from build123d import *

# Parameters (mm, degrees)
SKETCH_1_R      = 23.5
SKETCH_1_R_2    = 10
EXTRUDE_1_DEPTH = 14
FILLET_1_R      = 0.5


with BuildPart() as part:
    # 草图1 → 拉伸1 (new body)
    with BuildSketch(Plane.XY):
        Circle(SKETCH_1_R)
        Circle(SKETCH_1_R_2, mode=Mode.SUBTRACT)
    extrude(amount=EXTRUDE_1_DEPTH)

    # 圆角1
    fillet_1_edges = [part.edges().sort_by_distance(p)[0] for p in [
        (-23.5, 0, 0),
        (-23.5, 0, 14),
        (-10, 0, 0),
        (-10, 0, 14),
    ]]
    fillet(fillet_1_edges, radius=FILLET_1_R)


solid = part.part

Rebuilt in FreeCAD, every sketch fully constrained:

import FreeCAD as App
import Part
import Sketcher

V = App.Vector


def edges_at(feature, points):
    """Names of the edges that pass closest to the given points."""
    edges = feature.Shape.Edges
    near = lambda p: min(range(len(edges)), key=lambda i: edges[i].distToShape(Part.Vertex(*p))[0])
    return sorted({f"Edge{near(p) + 1}" for p in points})

doc = App.newDocument("Part")
params = doc.addObject("Spreadsheet::Sheet", "Params")
for row, (alias, value) in enumerate([
    ("sketch1_diameter", "47 mm"),
    ("sketch1_diameter2", "20 mm"),
    ("pad1_length", "14 mm"),
    ("fillet_radius", "0.5 mm"),
], start=1):
    params.set(f"A{row}", alias)
    params.set(f"B{row}", "=" + value)
    params.setAlias(f"B{row}", alias)

body = doc.addObject("PartDesign::Body", "Body")

# Sketch on XY plane
sketch1 = body.newObject("Sketcher::SketchObject", "Sketch")
sketch1.AttachmentSupport = (doc.getObject("XY_Plane"), [""])
sketch1.MapMode = "FlatFace"
sketch1.addGeometry([
    Part.Circle(V(0, 0, 0), V(0, 0, 1), 24),
    Part.Circle(V(0, 0, 0), V(0, 0, 1), 10),
], False)
sketch1.addConstraint([
    Sketcher.Constraint("Coincident", 0, 3, -1, 1),
    Sketcher.Constraint("Coincident", 1, 3, -1, 1),
    Sketcher.Constraint("Diameter", 0, 47.0),
    Sketcher.Constraint("Diameter", 1, 20.0),
])
sketch1.setExpression("Constraints[2]", "Params.sketch1_diameter")
sketch1.setExpression("Constraints[3]", "Params.sketch1_diameter2")
pad1 = body.newObject("PartDesign::Pad", "Pad")
pad1.Profile = sketch1
pad1.setExpression("Length", "Params.pad1_length")
doc.recompute()

fillet = body.newObject("PartDesign::Fillet", "Fillet")
fillet.Base = (pad1, edges_at(pad1, [
    (-23.5, 0, 0),
    (-23.5, 0, 14),
    (-10, 0, 0),
    (-10, 0, 14),
]))
fillet.setExpression("Radius", "Params.fillet_radius")

doc.recompute()
